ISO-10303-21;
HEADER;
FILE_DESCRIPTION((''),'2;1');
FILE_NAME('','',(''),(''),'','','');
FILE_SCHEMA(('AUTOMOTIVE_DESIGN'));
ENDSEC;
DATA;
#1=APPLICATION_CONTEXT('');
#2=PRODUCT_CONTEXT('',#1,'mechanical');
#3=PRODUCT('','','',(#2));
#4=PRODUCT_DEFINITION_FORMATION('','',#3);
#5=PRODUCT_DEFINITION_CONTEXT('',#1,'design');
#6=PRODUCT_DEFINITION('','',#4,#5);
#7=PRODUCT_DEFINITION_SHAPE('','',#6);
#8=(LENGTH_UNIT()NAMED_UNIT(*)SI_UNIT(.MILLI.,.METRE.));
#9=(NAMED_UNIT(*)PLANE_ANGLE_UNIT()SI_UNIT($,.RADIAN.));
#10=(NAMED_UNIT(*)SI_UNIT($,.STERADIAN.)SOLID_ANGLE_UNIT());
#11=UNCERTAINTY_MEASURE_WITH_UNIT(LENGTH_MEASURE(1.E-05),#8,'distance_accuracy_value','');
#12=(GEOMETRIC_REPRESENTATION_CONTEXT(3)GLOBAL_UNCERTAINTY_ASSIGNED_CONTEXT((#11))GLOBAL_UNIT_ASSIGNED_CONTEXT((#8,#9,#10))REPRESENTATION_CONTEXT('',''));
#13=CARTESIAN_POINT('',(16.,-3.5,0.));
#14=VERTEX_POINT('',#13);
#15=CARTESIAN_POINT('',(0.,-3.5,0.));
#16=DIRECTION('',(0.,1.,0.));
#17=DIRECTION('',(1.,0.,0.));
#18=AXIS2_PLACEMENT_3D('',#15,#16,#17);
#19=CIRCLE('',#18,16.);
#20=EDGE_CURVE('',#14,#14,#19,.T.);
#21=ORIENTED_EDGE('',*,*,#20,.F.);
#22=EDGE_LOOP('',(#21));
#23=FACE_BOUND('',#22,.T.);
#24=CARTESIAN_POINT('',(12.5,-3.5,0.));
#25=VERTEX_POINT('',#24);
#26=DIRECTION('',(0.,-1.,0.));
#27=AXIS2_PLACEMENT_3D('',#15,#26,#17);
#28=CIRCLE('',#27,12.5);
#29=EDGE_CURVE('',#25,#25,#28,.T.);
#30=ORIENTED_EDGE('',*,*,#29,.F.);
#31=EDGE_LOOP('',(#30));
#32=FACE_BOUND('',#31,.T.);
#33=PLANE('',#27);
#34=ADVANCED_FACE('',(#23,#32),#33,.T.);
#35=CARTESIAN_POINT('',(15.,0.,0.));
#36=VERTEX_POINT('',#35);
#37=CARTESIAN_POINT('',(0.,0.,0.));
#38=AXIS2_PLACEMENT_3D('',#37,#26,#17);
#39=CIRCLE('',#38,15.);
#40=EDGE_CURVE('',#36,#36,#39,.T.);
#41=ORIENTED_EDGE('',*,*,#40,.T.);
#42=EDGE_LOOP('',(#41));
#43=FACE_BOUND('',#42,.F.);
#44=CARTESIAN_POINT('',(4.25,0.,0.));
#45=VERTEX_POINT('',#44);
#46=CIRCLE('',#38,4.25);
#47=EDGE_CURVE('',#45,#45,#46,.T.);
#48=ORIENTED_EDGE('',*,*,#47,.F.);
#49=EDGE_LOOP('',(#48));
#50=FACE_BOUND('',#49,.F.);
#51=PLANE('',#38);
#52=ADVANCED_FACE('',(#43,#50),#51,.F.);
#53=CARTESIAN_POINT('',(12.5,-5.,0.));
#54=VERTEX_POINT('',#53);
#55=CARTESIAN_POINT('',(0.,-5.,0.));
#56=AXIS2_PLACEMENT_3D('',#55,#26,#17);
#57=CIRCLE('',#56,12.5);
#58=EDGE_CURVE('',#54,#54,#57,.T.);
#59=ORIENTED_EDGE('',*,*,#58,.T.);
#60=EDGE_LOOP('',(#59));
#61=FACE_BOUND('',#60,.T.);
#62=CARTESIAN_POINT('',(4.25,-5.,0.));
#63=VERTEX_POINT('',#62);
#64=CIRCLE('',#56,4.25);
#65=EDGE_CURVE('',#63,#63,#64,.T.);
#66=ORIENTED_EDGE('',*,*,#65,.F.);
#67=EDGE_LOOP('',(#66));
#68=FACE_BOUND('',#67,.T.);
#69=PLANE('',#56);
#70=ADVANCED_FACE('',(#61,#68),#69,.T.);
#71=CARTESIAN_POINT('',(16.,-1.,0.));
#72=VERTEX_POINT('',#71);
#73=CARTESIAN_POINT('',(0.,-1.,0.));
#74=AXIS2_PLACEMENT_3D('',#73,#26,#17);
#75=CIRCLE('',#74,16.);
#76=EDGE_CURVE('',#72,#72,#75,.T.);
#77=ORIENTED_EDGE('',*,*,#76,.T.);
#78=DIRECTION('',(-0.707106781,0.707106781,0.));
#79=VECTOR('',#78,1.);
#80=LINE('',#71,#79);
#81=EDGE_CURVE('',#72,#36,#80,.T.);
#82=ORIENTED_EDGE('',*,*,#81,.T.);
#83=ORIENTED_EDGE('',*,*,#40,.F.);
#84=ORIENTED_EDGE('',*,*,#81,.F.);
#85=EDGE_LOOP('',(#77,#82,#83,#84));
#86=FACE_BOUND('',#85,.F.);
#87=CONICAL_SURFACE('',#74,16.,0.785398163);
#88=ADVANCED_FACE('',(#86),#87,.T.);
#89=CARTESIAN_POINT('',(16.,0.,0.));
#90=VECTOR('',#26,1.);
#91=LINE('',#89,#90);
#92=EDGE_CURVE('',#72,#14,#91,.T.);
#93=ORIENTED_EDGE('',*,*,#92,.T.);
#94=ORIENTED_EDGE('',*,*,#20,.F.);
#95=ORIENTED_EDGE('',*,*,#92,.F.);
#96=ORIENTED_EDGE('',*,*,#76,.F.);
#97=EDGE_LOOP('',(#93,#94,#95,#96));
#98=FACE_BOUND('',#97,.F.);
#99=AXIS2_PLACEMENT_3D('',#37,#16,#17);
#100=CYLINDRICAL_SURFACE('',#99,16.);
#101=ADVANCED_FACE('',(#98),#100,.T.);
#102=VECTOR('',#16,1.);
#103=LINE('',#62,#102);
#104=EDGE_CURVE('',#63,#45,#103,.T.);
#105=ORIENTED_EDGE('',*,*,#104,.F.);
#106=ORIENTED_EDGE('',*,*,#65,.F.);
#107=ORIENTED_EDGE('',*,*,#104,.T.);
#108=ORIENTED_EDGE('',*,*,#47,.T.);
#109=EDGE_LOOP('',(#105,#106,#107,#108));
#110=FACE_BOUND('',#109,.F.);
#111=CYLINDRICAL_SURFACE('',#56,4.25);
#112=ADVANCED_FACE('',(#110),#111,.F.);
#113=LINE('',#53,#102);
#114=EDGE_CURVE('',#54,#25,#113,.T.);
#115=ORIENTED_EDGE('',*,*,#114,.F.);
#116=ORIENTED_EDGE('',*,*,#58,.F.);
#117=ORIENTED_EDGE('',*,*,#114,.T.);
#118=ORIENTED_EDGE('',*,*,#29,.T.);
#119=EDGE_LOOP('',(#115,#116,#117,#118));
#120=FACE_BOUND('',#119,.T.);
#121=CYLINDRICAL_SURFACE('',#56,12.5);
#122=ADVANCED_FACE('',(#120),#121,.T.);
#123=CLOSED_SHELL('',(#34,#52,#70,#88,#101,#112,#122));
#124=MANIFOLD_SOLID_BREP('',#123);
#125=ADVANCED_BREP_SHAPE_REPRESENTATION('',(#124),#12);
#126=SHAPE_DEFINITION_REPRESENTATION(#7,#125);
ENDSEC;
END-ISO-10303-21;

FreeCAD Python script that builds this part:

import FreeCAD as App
import Part
import Sketcher
from FreeCAD import Vector


def edges_at(feature, points):
    """Names of the edges that pass closest to the given points."""
    edges = feature.Shape.Edges
    near = lambda p: min(range(len(edges)), key=lambda i: edges[i].distToShape(Part.Vertex(*p))[0])
    return sorted({f"Edge{near(p) + 1}" for p in points})

doc = App.newDocument("Part")
body = doc.addObject("PartDesign::Body", "Body")

sketch1 = body.newObject("Sketcher::SketchObject", "Sketch")
sketch1.AttachmentSupport = (doc.getObject("XZ_Plane"), [""])
sketch1.MapMode = "FlatFace"
sketch1.addGeometry(Part.Circle(Vector(0, 0, 0), Vector(0, 0, 1), 16), False)
sketch1.addConstraint([
    Sketcher.Constraint("Coincident", 0, 3, -1, 1),
    Sketcher.Constraint("Diameter", 0, 32.0),
])
pad1 = body.newObject("PartDesign::Pad", "Pad")
pad1.Profile = sketch1
pad1.Length = 5

sketch2 = body.newObject("Sketcher::SketchObject", "Sketch001")
sketch2.AttachmentSupport = (doc.getObject("XZ_Plane"), [""])
sketch2.MapMode = "FlatFace"
sketch2.AttachmentOffset = App.Placement(Vector(0, 0, 5), App.Rotation())
sketch2.addGeometry([
    Part.Circle(Vector(0, 0, 0), Vector(0, 0, 1), 23),
    Part.Circle(Vector(0, 0, 0), Vector(0, 0, 1), 12),
], False)
sketch2.addConstraint([
    Sketcher.Constraint("Coincident", 0, 3, -1, 1),
    Sketcher.Constraint("Coincident", 1, 3, -1, 1),
    Sketcher.Constraint("Diameter", 1, 25.0),
    Sketcher.Constraint("Diameter", 0, 46.582838),
])
pocket1 = body.newObject("PartDesign::Pocket", "Pocket")
pocket1.Profile = sketch2
pocket1.Length = 1.5
doc.recompute()

chamfer = body.newObject("PartDesign::Chamfer", "Chamfer")
chamfer.Base = (pocket1, edges_at(pocket1, [(-16, 0, 0)]))
chamfer.Size = 1

sketch3 = body.newObject("Sketcher::SketchObject", "Sketch002")
sketch3.AttachmentSupport = (doc.getObject("XZ_Plane"), [""])
sketch3.MapMode = "FlatFace"
sketch3.AttachmentOffset = App.Placement(Vector(0, 0, 5), App.Rotation())
sketch3.addGeometry(Part.Circle(Vector(0, 0, 0), Vector(0, 0, 1), 4.2), False)
sketch3.addConstraint([
    Sketcher.Constraint("Coincident", 0, 3, -1, 1),
    Sketcher.Constraint("Diameter", 0, 8.5),
])
pocket2 = body.newObject("PartDesign::Pocket", "Pocket001")
pocket2.Profile = sketch3
pocket2.Length = 25

doc.recompute()
